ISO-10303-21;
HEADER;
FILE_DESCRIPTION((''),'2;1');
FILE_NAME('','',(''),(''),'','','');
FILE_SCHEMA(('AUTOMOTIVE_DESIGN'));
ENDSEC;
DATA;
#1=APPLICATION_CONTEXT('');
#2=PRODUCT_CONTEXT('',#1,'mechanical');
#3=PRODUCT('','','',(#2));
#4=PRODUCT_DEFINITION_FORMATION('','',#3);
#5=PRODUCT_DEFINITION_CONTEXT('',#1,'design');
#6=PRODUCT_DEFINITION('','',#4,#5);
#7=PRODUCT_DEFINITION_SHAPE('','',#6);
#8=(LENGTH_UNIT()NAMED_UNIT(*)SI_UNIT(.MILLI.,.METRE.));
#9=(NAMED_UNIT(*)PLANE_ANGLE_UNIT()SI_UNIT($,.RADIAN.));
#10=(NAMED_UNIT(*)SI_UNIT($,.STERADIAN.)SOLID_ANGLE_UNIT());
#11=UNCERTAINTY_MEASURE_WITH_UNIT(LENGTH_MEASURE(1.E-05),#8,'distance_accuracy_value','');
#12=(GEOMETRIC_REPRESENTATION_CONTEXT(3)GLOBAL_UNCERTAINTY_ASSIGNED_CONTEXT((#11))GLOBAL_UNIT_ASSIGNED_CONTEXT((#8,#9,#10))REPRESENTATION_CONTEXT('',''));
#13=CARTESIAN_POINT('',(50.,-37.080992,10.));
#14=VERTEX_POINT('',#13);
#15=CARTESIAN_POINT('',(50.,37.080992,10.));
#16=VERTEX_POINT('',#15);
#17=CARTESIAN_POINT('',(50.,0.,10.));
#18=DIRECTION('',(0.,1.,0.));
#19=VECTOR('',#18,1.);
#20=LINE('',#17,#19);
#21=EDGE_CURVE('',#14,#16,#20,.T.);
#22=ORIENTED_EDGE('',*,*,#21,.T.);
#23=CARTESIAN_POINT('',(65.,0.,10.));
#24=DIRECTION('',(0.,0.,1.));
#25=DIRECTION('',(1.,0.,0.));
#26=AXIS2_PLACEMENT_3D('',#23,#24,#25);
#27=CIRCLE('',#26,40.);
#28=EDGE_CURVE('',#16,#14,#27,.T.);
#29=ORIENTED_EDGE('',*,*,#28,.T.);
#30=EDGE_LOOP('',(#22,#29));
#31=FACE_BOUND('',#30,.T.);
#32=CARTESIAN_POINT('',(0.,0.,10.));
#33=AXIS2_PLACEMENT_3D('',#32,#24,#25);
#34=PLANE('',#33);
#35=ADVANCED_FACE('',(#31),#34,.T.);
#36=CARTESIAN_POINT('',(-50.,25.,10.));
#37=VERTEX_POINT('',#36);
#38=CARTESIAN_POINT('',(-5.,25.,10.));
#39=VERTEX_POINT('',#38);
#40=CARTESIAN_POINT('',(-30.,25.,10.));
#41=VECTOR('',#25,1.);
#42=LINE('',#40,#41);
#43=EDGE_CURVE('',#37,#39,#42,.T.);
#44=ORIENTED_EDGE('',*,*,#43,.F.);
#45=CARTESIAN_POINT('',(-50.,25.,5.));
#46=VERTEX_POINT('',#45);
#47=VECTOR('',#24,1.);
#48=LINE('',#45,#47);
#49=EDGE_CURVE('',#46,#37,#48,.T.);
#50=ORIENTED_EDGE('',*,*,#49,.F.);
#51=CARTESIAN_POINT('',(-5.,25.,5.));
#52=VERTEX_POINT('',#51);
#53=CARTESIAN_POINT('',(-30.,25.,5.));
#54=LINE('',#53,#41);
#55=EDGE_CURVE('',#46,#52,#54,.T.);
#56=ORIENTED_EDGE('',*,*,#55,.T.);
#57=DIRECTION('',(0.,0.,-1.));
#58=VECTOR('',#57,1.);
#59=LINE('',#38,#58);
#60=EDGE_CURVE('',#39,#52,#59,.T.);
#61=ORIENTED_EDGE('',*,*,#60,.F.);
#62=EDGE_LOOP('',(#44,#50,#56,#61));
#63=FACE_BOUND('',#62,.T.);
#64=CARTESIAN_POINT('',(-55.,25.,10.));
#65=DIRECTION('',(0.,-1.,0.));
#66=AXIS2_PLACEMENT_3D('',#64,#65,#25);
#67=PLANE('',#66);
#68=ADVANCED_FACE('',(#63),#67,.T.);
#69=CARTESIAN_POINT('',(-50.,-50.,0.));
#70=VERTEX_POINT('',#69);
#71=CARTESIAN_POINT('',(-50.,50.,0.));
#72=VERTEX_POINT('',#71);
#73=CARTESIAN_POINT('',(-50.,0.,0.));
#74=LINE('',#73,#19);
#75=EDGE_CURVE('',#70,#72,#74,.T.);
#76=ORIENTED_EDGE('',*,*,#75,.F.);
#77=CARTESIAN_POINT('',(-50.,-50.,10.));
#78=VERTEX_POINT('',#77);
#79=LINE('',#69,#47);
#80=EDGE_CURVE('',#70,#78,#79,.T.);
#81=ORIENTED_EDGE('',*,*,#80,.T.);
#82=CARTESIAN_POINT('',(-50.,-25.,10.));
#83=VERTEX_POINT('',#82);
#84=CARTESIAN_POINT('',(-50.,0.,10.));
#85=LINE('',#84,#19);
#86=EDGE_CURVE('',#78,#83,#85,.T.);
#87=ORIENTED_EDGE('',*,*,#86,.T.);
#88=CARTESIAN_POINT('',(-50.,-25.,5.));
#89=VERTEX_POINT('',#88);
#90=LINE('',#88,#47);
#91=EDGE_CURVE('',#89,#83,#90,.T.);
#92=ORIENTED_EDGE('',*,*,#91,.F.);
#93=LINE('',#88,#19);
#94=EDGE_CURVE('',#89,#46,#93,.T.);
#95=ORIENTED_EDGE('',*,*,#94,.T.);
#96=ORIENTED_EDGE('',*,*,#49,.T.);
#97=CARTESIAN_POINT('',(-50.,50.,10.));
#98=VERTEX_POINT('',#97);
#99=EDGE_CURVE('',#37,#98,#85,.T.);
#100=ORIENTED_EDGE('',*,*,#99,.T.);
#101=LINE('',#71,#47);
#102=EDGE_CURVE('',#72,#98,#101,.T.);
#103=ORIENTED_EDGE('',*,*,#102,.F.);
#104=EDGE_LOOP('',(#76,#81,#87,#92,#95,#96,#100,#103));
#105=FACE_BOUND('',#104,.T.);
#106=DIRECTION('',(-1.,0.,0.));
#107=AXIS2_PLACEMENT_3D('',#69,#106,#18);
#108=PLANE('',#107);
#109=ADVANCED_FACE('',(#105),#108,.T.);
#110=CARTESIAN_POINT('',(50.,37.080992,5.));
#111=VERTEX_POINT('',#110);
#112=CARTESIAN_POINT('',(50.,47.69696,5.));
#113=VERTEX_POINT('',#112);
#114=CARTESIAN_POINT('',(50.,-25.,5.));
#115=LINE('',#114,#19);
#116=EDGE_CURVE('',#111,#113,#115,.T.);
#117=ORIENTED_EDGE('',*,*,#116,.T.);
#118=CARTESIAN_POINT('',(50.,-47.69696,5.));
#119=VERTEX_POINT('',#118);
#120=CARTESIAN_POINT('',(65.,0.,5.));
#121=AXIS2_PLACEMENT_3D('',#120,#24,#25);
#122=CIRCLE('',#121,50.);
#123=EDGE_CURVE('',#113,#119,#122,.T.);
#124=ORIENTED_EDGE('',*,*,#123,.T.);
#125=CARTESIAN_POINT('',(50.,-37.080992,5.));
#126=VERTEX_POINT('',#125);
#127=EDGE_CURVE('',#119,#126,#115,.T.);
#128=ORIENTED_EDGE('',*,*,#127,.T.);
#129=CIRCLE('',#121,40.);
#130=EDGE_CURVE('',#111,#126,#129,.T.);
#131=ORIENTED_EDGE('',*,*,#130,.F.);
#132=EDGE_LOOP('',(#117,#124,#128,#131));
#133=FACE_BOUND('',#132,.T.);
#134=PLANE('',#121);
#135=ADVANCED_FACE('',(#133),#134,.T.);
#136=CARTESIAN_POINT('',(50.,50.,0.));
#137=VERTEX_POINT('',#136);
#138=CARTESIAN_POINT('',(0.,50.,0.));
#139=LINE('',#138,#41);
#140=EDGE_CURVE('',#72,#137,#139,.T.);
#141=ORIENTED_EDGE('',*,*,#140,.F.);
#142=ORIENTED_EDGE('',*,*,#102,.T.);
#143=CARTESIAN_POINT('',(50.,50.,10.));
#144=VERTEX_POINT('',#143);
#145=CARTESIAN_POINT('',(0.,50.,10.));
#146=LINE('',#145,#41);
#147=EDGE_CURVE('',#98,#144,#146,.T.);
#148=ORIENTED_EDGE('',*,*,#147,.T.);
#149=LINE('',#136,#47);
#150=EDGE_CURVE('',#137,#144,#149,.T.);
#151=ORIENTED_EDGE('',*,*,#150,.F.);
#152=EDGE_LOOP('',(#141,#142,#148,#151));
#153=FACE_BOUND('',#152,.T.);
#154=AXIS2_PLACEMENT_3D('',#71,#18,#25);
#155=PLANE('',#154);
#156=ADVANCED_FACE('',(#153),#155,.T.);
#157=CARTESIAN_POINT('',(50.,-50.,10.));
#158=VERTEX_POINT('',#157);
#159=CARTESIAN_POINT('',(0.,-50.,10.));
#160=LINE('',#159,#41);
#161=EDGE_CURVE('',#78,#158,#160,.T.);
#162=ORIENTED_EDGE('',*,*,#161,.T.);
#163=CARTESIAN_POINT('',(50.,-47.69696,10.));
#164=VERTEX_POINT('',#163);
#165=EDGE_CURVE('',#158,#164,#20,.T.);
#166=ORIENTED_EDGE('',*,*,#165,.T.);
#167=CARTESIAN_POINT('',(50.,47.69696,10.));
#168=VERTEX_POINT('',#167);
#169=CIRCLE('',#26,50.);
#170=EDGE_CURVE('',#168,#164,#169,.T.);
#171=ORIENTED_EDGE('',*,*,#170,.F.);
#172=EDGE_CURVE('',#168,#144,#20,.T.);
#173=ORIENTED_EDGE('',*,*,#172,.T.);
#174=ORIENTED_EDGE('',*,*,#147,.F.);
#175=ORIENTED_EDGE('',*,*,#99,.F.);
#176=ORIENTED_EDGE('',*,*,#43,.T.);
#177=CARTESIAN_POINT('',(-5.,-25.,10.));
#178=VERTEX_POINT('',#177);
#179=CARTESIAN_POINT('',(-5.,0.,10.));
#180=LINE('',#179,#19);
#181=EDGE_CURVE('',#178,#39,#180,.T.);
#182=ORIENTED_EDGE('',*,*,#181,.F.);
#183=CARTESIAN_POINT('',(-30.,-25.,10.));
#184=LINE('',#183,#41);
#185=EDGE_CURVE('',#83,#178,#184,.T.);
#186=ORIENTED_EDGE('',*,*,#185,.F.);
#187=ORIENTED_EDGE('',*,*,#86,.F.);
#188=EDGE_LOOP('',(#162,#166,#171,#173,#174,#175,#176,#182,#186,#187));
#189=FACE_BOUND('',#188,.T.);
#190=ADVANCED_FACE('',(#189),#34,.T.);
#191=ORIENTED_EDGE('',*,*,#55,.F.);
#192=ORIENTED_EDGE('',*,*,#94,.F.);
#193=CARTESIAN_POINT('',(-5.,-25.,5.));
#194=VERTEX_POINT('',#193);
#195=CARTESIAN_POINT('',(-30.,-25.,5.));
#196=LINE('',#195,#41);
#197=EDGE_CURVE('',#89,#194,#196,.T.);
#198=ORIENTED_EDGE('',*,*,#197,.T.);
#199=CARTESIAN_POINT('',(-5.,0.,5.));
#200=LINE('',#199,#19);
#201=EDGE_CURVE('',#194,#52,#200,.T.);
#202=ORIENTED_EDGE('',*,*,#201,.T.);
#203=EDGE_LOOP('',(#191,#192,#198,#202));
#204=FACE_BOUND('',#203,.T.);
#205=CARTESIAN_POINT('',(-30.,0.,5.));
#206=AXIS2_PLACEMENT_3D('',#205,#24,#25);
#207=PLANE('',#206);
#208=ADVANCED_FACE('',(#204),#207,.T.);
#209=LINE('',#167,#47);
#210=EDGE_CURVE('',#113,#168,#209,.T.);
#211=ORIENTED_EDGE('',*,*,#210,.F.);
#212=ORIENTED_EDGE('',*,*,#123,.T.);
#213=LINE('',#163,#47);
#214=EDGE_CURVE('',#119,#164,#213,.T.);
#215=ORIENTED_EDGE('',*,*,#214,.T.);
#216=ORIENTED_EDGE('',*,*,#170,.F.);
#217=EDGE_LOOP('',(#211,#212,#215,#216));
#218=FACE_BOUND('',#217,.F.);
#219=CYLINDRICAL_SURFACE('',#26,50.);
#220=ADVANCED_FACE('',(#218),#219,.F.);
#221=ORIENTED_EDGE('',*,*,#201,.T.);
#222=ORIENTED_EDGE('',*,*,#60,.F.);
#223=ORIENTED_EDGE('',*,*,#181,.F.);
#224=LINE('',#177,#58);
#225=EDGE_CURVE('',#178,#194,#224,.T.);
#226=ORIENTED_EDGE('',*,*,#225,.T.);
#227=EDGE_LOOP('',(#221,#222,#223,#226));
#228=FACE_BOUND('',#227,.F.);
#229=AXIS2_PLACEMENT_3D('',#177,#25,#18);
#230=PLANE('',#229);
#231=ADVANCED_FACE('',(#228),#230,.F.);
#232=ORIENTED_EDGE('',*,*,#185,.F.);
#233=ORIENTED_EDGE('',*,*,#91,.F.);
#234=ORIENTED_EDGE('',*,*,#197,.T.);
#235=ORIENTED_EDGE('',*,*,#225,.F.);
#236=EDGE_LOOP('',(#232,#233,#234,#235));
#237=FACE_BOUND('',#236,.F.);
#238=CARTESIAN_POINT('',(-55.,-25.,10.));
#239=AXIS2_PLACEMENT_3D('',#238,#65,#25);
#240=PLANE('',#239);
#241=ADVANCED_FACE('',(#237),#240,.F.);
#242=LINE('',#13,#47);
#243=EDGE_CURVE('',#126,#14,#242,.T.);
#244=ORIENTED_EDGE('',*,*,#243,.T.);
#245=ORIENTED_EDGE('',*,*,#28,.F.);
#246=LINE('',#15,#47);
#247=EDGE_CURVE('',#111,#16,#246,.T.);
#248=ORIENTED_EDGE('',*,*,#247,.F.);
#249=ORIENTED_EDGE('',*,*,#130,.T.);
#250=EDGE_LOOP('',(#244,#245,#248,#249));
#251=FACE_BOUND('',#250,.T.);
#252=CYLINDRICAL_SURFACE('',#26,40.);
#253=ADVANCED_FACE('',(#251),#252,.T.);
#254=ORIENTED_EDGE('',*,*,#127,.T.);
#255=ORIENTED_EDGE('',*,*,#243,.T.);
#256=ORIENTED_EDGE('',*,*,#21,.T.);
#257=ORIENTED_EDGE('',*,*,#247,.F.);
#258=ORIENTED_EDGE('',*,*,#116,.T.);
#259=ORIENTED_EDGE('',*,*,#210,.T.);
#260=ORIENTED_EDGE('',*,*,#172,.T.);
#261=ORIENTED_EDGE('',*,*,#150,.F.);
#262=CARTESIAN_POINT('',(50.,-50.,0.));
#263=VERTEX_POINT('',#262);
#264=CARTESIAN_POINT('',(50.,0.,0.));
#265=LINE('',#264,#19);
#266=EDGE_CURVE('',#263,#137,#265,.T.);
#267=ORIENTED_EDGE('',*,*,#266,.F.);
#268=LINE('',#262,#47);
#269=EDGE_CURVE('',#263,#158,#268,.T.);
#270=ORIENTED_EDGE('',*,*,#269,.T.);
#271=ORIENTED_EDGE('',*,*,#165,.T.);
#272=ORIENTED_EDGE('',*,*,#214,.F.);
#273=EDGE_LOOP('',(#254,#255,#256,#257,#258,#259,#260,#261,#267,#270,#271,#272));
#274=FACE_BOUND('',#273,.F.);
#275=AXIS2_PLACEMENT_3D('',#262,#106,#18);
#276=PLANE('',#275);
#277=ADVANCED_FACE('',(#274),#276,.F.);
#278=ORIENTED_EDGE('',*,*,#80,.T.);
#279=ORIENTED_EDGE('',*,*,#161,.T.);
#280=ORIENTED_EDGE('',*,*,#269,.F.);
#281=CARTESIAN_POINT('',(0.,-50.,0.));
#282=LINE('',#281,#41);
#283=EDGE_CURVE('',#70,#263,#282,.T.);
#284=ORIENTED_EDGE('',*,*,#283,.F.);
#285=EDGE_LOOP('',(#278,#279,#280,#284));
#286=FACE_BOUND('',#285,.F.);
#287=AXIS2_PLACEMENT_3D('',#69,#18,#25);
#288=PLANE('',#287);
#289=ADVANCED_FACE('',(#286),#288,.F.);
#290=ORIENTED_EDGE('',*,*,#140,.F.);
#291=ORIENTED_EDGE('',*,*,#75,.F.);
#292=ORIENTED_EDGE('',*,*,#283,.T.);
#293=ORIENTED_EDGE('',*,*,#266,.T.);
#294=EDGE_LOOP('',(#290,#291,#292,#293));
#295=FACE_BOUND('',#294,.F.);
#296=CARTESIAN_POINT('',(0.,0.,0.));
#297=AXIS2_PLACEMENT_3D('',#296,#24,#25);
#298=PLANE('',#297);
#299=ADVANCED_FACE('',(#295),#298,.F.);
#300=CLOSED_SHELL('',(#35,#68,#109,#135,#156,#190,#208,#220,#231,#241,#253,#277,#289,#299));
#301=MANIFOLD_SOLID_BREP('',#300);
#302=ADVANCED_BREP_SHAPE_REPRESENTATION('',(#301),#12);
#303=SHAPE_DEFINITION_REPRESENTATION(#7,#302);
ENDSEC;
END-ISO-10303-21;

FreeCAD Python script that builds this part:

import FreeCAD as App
import Part
import Sketcher
from FreeCAD import Vector
Q = App.Units.Quantity


def add_polygon(sketch, points):
    """Adds a closed chain of lines whose ends are joined by coincident constraints."""
    first, n = sketch.GeometryCount, len(points)
    for a, b in zip(points, points[1:] + points[:1]):
        sketch.addGeometry(Part.LineSegment(App.Vector(*a, 0), App.Vector(*b, 0)), False)
    for i in range(n):
        sketch.addConstraint(Sketcher.Constraint("Coincident", first + i, 2, first + (i + 1) % n, 1))

doc = App.newDocument("Part")
body = doc.addObject("PartDesign::Body", "Body")

# Sketch on XY plane
sketch1 = doc.addObject("Sketcher::SketchObject", "Sketch")
body.addObject(sketch1)
sketch1.AttachmentSupport = (doc.XY_Plane, [""])
sketch1.MapMode = "FlatFace"
add_polygon(sketch1, [(-50, 50), (-50, -50), (50, -50), (50, 50)])  # lines 0-3
sketch1.addConstraint([
    Sketcher.Constraint("Vertical", 0),
    Sketcher.Constraint("Horizontal", 1),
    Sketcher.Constraint("Vertical", 2),
    Sketcher.Constraint("Horizontal", 3),
    Sketcher.Constraint("Symmetric", 0, 2, 2, 2, -1, 1),
    Sketcher.Constraint("Equal", 3, 0),
    Sketcher.Constraint("DistanceX", 1, 1, 1, 2, Q("100 mm")),
])
pad1 = doc.addObject("PartDesign::Pad", "Pad")
body.addObject(pad1)
pad1.Profile = sketch1
pad1.Length = 10

# Sketch on XY plane
sketch2 = doc.addObject("Sketcher::SketchObject", "Sketch001")
body.addObject(sketch2)
sketch2.AttachmentSupport = (doc.XY_Plane, [""])
sketch2.MapMode = "FlatFace"
sketch2.AttachmentOffset = App.Placement(Vector(0, 0, 10), App.Rotation())
sketch2.addGeometry(Part.Circle(Vector(65, 0, 0), Vector(0, 0, 1), 50), False)  # 0
sketch2.addGeometry(Part.Circle(Vector(65, 0, 0), Vector(0, 0, 1), 40), False)  # 1
add_polygon(sketch2, [(-55, 25), (-55, -25), (-5, -25), (-5, 25)])  # lines 2-5
sketch2.addConstraint([
    Sketcher.Constraint("Vertical", 2),
    Sketcher.Constraint("Horizontal", 3),
    Sketcher.Constraint("Vertical", 4),
    Sketcher.Constraint("Horizontal", 5),
    Sketcher.Constraint("Coincident", 1, 3, 0, 3),
    Sketcher.Constraint("PointOnObject", 0, 3, -1),
    Sketcher.Constraint("Equal", 5, 2),
    Sketcher.Constraint("Diameter", 0, Q("100 mm")),
    Sketcher.Constraint("Diameter", 1, Q("80 mm")),
    Sketcher.Constraint("DistanceX", 3, 1, 3, 2, Q("50 mm")),
    Sketcher.Constraint("DistanceX", -1, 1, 0, 3, Q("65 mm")),
    Sketcher.Constraint("DistanceX", 2, 2, -1, 1, Q("55 mm")),
    Sketcher.Constraint("DistanceY", 2, 2, -1, 1, Q("25 mm")),
])
pocket1 = doc.addObject("PartDesign::Pocket", "Pocket")
body.addObject(pocket1)
pocket1.Profile = sketch2
pocket1.Length = 5

doc.recompute()
